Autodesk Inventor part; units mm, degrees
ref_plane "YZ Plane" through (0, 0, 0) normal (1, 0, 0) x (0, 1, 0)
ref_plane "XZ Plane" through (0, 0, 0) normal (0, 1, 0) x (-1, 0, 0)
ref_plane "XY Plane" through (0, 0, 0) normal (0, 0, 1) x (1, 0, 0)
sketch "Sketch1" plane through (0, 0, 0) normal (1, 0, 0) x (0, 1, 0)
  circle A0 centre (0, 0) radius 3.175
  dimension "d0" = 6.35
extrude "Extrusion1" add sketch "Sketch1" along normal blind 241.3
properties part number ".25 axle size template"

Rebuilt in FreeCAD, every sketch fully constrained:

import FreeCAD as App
import Part
import Sketcher

V = App.Vector
Q = App.Units.Quantity

doc = App.newDocument("Part")
body = doc.addObject("PartDesign::Body", "Body")

sketch1 = doc.addObject("Sketcher::SketchObject", "Sketch")
body.addObject(sketch1)
sketch1.AttachmentSupport = (doc.YZ_Plane, [""])
sketch1.MapMode = "FlatFace"
sketch1.addGeometry(Part.Circle(V(0, 0, 0), V(0, 0, 1), 3.2), False)
sketch1.addConstraint(Sketcher.Constraint("Coincident", 0, 3, -1, 1))
sketch1.addConstraint(Sketcher.Constraint("Diameter", 0, Q("0.25 in")))
pad1 = doc.addObject("PartDesign::Pad", "Pad")
body.addObject(pad1)
pad1.Profile = sketch1
pad1.Length = Q("9.5 in")

doc.recompute()
